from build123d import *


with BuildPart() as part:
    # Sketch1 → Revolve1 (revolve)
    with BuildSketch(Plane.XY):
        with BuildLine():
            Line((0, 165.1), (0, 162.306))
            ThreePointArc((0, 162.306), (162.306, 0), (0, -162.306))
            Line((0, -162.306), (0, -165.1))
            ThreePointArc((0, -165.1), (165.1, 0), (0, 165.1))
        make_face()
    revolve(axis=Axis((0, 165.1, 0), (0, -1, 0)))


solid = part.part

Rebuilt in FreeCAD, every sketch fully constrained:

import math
import FreeCAD as App
import Part
import Sketcher
Q = App.Units.Quantity

doc = App.newDocument("Part")
body = doc.addObject("PartDesign::Body", "Body")

# Sketch on XY plane
sketch1 = body.newObject("Sketcher::SketchObject", "Sketch")
sketch1.AttachmentSupport = (doc.getObject("XY_Plane"), [""])
sketch1.MapMode = "FlatFace"
sketch1.addGeometry([
    Part.LineSegment(App.Vector(0, 165.1, 0), App.Vector(0, 162.306, 0)),
    Part.ArcOfCircle(Part.Circle(App.Vector(0, 0, 0), App.Vector(0, 0, 1), 162.306), math.radians(-90), math.radians(90)),
    Part.LineSegment(App.Vector(0, -162.306, 0), App.Vector(0, -165.1, 0)),
    Part.ArcOfCircle(Part.Circle(App.Vector(0, 0, 0), App.Vector(0, 0, 1), 165.1), math.radians(-90), math.radians(90)),
], False)
sketch1.addConstraint([
    Sketcher.Constraint("Coincident", 0, 2, 1, 2),
    Sketcher.Constraint("Coincident", 1, 1, 2, 1),
    Sketcher.Constraint("Coincident", 2, 2, 3, 1),
    Sketcher.Constraint("Coincident", 3, 2, 0, 1),
    Sketcher.Constraint("Vertical", 0),
    Sketcher.Constraint("Vertical", 2),
    Sketcher.Constraint("Coincident", 1, 3, -1, 1),
    Sketcher.Constraint("Coincident", 3, 3, -1, 1),
    Sketcher.Constraint("PointOnObject", 0, 2, -2),
    Sketcher.Constraint("PointOnObject", 1, 1, -2),
    Sketcher.Constraint("Radius", 3, Q("6.5 in")),
    Sketcher.Constraint("Radius", 1, Q("6.39 in")),
])
revolution = body.newObject("PartDesign::Revolution", "Revolution")
revolution.Profile = sketch1
revolution.ReferenceAxis = (sketch1, ["V_Axis"])
revolution.Angle = 360

doc.recompute()
